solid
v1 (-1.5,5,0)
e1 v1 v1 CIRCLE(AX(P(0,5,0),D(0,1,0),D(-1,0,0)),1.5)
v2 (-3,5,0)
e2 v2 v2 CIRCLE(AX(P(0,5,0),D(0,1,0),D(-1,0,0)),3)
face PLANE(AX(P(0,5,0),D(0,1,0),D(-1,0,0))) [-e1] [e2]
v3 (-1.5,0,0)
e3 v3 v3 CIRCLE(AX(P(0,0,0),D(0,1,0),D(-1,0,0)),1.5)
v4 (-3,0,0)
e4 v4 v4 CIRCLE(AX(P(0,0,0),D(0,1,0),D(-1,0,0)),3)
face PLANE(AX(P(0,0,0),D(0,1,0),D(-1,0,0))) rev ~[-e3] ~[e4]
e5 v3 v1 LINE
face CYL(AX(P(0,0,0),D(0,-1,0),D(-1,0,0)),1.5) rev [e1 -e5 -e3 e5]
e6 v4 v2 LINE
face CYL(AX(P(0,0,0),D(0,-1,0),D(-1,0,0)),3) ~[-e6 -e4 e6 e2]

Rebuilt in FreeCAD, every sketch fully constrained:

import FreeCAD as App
import Part
import Sketcher

V = App.Vector

doc = App.newDocument("Part")
body = doc.addObject("PartDesign::Body", "Body")

# Sketch on XZ plane
sketch1 = doc.addObject("Sketcher::SketchObject", "Sketch")
body.addObject(sketch1)
sketch1.AttachmentSupport = (doc.XZ_Plane, [""])
sketch1.MapMode = "FlatFace"
sketch1.addGeometry([
    Part.Circle(V(0, 0, 0), V(0, 0, 1), 3),
    Part.Circle(V(0, 0, 0), V(0, 0, 1), 1.5),
], False)
sketch1.addConstraint([
    Sketcher.Constraint("Coincident", 0, 3, -1, 1),
    Sketcher.Constraint("Coincident", 1, 3, -1, 1),
    Sketcher.Constraint("Diameter", 0, 6.0),
    Sketcher.Constraint("Diameter", 1, 3.0),
])
pad1 = doc.addObject("PartDesign::Pad", "Pad")
body.addObject(pad1)
pad1.Profile = sketch1
pad1.Length = 5
pad1.Reversed = True

doc.recompute()
